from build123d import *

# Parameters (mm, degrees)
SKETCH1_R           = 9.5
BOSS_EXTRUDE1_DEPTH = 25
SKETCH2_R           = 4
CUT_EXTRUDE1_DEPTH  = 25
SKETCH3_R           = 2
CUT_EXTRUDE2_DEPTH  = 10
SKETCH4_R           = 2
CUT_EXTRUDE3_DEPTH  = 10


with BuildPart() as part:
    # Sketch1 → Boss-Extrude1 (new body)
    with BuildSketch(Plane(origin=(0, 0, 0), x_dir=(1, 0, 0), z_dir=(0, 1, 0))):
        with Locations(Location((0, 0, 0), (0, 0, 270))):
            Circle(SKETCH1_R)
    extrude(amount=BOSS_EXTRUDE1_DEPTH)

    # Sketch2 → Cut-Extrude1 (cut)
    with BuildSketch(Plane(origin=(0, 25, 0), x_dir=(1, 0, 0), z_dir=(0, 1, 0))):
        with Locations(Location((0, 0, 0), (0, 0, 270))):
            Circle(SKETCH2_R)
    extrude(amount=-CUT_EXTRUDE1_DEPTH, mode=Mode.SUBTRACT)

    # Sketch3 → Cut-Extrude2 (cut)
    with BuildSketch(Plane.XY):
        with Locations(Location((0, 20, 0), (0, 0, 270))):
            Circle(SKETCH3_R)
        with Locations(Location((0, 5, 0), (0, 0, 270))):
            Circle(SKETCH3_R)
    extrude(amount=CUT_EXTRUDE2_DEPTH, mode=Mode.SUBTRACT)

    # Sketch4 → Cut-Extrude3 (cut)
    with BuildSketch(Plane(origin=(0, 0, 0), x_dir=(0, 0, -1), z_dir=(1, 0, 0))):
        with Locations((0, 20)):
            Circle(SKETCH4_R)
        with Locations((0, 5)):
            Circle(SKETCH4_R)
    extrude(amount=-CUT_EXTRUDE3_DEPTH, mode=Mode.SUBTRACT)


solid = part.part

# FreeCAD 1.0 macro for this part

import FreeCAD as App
import Part
import Sketcher
from FreeCAD import Vector
Q = App.Units.Quantity

doc = App.newDocument("Part")
body = doc.addObject("PartDesign::Body", "Body")

# Sketch on XZ plane
sketch1 = body.newObject("Sketcher::SketchObject", "Sketch")
sketch1.AttachmentSupport = (doc.getObject("XZ_Plane"), [""])
sketch1.MapMode = "FlatFace"
sketch1.addGeometry(Part.Circle(Vector(0, 0, 0), Vector(0, 0, 1), 9.5), False)
sketch1.addConstraint(Sketcher.Constraint("Coincident", 0, 3, -1, 1))
sketch1.addConstraint(Sketcher.Constraint("Diameter", 0, Q("19 mm")))
pad1 = body.newObject("PartDesign::Pad", "Pad")
pad1.Profile = sketch1
pad1.Length = 25
pad1.Reversed = True

# Sketch on XZ plane
sketch2 = body.newObject("Sketcher::SketchObject", "Sketch001")
sketch2.AttachmentSupport = (doc.getObject("XZ_Plane"), [""])
sketch2.MapMode = "FlatFace"
sketch2.AttachmentOffset = App.Placement(Vector(0, 0, -25), App.Rotation())
sketch2.addGeometry(Part.Circle(Vector(0, 0, 0), Vector(0, 0, 1), 4), False)
sketch2.addConstraint(Sketcher.Constraint("Coincident", 0, 3, -1, 1))
sketch2.addConstraint(Sketcher.Constraint("Diameter", 0, Q("8 mm")))
pocket1 = body.newObject("PartDesign::Pocket", "Pocket")
pocket1.Profile = sketch2
pocket1.Length = 25
pocket1.Reversed = True

# Sketch on XY plane
sketch3 = body.newObject("Sketcher::SketchObject", "Sketch002")
sketch3.AttachmentSupport = (doc.getObject("XY_Plane"), [""])
sketch3.MapMode = "FlatFace"
sketch3.addGeometry(Part.Circle(Vector(0, 20, 0), Vector(0, 0, 1), 2), False)
sketch3.addGeometry(Part.Circle(Vector(0, 5, 0), Vector(0, 0, 1), 2), False)
sketch3.addConstraint(Sketcher.Constraint("Equal", 0, 1))
sketch3.addConstraint(Sketcher.Constraint("PointOnObject", 0, 3, -2))
sketch3.addConstraint(Sketcher.Constraint("PointOnObject", 1, 3, -2))
sketch3.addConstraint(Sketcher.Constraint("Diameter", 0, Q("4 mm")))
sketch3.addConstraint(Sketcher.Constraint("DistanceY", -1, 1, 0, 3, Q("20 mm")))
sketch3.addConstraint(Sketcher.Constraint("DistanceY", -1, 1, 1, 3, Q("5 mm")))
pocket2 = body.newObject("PartDesign::Pocket", "Pocket001")
pocket2.Profile = sketch3
pocket2.Length = 10
pocket2.Reversed = True

# Sketch on YZ plane
sketch4 = body.newObject("Sketcher::SketchObject", "Sketch003")
sketch4.AttachmentSupport = (doc.getObject("YZ_Plane"), [""])
sketch4.MapMode = "FlatFace"
sketch4.addGeometry(Part.Circle(Vector(20, 0, 0), Vector(0, 0, 1), 2), False)
sketch4.addGeometry(Part.Circle(Vector(5, 0, 0), Vector(0, 0, 1), 2), False)
sketch4.addConstraint(Sketcher.Constraint("Equal", 0, 1))
sketch4.addConstraint(Sketcher.Constraint("PointOnObject", 0, 3, -1))
sketch4.addConstraint(Sketcher.Constraint("PointOnObject", 1, 3, -1))
sketch4.addConstraint(Sketcher.Constraint("Diameter", 0, Q("4 mm")))
sketch4.addConstraint(Sketcher.Constraint("DistanceX", -1, 1, 0, 3, Q("20 mm")))
sketch4.addConstraint(Sketcher.Constraint("DistanceX", -1, 1, 1, 3, Q("5 mm")))
pocket3 = body.newObject("PartDesign::Pocket", "Pocket002")
pocket3.Profile = sketch4
pocket3.Length = 10

doc.recompute()
